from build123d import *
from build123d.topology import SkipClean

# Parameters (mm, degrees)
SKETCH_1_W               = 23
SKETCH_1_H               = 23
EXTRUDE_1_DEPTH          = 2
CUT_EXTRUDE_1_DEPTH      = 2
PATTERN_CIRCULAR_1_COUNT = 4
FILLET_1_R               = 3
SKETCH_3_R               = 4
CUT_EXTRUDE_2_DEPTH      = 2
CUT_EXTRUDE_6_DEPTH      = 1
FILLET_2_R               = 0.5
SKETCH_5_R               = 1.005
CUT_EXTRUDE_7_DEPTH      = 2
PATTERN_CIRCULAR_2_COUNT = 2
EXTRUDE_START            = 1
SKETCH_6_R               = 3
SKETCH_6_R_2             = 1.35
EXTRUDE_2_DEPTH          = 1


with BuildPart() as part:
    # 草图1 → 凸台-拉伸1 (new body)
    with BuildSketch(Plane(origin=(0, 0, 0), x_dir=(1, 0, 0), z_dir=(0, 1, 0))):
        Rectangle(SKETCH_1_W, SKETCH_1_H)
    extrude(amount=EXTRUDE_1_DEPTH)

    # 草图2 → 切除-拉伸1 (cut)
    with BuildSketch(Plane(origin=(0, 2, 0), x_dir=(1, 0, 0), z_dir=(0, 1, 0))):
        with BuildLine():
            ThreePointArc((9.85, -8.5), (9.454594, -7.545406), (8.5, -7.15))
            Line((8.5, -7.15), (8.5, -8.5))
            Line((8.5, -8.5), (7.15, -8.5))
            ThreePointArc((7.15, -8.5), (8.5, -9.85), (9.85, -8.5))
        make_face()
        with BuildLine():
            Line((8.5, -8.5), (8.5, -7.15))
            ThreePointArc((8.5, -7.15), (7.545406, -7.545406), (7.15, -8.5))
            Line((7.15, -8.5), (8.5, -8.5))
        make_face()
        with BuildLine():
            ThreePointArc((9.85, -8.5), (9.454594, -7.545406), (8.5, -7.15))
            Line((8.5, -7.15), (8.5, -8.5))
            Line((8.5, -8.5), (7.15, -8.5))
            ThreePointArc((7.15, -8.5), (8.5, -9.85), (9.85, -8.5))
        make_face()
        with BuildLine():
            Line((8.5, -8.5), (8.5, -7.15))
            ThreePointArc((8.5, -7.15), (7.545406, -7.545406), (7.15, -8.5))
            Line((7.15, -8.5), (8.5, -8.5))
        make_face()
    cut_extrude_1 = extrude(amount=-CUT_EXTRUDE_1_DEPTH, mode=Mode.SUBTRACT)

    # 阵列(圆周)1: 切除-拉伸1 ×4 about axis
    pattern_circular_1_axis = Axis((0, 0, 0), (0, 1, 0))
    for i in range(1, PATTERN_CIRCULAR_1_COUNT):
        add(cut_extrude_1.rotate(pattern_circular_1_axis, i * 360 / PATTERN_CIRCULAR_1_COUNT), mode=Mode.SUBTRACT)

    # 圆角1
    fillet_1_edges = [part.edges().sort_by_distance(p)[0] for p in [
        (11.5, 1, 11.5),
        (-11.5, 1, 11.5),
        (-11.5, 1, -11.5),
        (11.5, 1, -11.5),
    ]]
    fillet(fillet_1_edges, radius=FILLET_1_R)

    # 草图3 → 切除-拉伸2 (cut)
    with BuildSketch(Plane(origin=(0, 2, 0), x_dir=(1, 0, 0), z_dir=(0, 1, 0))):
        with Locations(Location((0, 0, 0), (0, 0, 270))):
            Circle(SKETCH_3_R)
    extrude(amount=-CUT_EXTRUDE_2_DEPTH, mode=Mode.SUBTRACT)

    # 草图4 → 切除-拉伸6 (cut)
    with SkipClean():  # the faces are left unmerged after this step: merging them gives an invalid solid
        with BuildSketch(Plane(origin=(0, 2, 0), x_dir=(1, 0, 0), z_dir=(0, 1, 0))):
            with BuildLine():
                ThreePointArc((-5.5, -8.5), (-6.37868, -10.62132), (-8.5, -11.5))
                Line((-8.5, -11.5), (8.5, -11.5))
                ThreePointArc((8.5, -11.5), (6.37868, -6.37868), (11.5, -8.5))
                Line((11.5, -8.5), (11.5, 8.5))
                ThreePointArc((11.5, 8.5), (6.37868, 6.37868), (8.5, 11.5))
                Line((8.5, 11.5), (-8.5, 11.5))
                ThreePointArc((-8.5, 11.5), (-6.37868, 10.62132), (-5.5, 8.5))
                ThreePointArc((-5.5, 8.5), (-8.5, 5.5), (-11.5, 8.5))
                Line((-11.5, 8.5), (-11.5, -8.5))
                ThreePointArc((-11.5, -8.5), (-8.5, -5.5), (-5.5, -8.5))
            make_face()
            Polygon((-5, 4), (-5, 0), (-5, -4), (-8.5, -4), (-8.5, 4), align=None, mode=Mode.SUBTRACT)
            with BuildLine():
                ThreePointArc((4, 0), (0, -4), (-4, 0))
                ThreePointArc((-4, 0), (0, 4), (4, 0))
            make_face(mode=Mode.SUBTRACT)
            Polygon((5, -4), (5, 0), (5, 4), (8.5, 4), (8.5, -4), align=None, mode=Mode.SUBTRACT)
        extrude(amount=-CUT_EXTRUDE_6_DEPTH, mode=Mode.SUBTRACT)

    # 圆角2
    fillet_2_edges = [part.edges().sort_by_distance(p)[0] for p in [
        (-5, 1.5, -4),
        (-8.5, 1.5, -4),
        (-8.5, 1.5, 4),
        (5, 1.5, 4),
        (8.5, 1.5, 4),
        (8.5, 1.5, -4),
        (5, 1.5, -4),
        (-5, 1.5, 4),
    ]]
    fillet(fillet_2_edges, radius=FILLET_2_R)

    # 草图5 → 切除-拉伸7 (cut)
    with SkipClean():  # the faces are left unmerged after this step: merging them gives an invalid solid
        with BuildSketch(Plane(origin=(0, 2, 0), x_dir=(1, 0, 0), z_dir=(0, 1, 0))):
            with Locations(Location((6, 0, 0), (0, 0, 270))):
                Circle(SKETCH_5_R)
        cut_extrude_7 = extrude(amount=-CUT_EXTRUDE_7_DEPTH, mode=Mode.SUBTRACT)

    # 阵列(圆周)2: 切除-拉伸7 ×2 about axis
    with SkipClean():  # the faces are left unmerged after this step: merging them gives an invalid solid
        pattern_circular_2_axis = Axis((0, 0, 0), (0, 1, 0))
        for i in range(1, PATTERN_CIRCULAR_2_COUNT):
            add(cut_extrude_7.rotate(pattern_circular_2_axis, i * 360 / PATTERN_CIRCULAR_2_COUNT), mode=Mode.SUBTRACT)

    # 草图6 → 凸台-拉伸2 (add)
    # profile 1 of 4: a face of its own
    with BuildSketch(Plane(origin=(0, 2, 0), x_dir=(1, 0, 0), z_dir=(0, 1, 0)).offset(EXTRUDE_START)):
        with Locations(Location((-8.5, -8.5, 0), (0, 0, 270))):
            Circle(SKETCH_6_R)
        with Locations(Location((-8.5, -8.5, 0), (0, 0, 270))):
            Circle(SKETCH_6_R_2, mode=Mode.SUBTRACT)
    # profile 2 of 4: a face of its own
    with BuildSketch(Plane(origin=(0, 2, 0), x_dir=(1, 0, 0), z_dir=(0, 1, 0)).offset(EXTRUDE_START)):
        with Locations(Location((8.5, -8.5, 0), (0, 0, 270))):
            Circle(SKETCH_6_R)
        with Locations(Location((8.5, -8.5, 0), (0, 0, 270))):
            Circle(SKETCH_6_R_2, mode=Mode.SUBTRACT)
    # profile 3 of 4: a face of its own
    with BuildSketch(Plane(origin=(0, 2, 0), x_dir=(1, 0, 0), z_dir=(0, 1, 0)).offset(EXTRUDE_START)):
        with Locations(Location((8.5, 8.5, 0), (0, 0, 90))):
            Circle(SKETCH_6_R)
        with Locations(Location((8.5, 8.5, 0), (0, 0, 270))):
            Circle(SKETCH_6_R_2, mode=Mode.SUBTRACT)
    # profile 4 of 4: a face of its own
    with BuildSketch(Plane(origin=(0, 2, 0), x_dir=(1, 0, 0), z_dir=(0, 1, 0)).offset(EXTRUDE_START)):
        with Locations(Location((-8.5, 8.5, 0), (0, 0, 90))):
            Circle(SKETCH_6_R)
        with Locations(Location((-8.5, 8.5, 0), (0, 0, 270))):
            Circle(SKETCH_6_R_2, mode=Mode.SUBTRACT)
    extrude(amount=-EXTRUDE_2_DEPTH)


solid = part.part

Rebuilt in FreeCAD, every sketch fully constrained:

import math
import FreeCAD as App
import Part
import Sketcher
from FreeCAD import Vector


def edges_at(feature, points):
    """Names of the edges that pass closest to the given points."""
    edges = feature.Shape.Edges
    near = lambda p: min(range(len(edges)), key=lambda i: edges[i].distToShape(Part.Vertex(*p))[0])
    return sorted({f"Edge{near(p) + 1}" for p in points})

doc = App.newDocument("Part")
params = doc.addObject("Spreadsheet::Sheet", "Params")
for row, (alias, value) in enumerate([
    ("sketch1_width", "23 mm"),
    ("pad1_length", "2 mm"),
    ("sketch2_radius", "1.350001 mm"),
    ("pocket1_length", "2 mm"),
    ("fillet_radius", "3 mm"),
    ("sketch3_diameter", "8 mm"),
    ("pocket2_length", "2 mm"),
    ("sketch4_radius", "3.000001 mm"),
    ("sketch4_radius2", "4 mm"),
    ("sketch4_width", "17 mm"),
    ("sketch4_height", "4 mm"),
    ("sketch4_width2", "3.5 mm"),
    ("pocket3_length", "1 mm"),
    ("fillet2_radius", "0.5 mm"),
    ("sketch5_diameter", "2.01 mm"),
    ("pocket4_length", "2 mm"),
    ("sketch6_diameter", "6 mm"),
    ("sketch6_diameter2", "2.7 mm"),
    ("pad2_length", "1 mm"),
], start=1):
    params.set(f"A{row}", alias)
    params.set(f"B{row}", "=" + value)
    params.setAlias(f"B{row}", alias)

body = doc.addObject("PartDesign::Body", "Body")

# Sketch on XZ plane
sketch1 = body.newObject("Sketcher::SketchObject", "Sketch")
sketch1.AttachmentSupport = (doc.getObject("XZ_Plane"), [""])
sketch1.MapMode = "FlatFace"
sketch1.addGeometry([
    Part.LineSegment(Vector(-11.5, -11.5, 0), Vector(-11.5, 11.5, 0)),
    Part.LineSegment(Vector(-11.5, 11.5, 0), Vector(11.5, 11.5, 0)),
    Part.LineSegment(Vector(11.5, 11.5, 0), Vector(11.5, -11.5, 0)),
    Part.LineSegment(Vector(11.5, -11.5, 0), Vector(-11.5, -11.5, 0)),
], False)
sketch1.addConstraint([
    Sketcher.Constraint("Coincident", 0, 2, 1, 1),
    Sketcher.Constraint("Coincident", 1, 2, 2, 1),
    Sketcher.Constraint("Coincident", 2, 2, 3, 1),
    Sketcher.Constraint("Coincident", 3, 2, 0, 1),
    Sketcher.Constraint("Vertical", 0),
    Sketcher.Constraint("Horizontal", 1),
    Sketcher.Constraint("Vertical", 2),
    Sketcher.Constraint("Horizontal", 3),
    Sketcher.Constraint("Symmetric", 0, 2, 2, 2, -1, 1),
    Sketcher.Constraint("Equal", 3, 0),
    Sketcher.Constraint("DistanceX", 1, 1, 1, 2, 23.0),
])
sketch1.setExpression("Constraints[10]", "Params.sketch1_width")
pad1 = body.newObject("PartDesign::Pad", "Pad")
pad1.Profile = sketch1
pad1.setExpression("Length", "Params.pad1_length")
pad1.Reversed = True

# Sketch on XZ plane
sketch2 = body.newObject("Sketcher::SketchObject", "Sketch001")
sketch2.AttachmentSupport = (doc.getObject("XZ_Plane"), [""])
sketch2.MapMode = "FlatFace"
sketch2.AttachmentOffset = App.Placement(Vector(0, 0, -2), App.Rotation())
sketch2.addGeometry([
    Part.ArcOfCircle(Part.Circle(Vector(8.499999, 8.500001, 0), Vector(0, 0, 1), 1.350001), math.radians(-89.999978), math.radians(-0.000022)),
    Part.ArcOfCircle(Part.Circle(Vector(8.500001, 8.500001, 0), Vector(0, 0, 1), 1.350001), math.radians(-179.999978), math.radians(-90.000022)),
    Part.ArcOfCircle(Part.Circle(Vector(8.5, 8.5, 0), Vector(0, 0, 1), 1.35), math.radians(0), math.radians(180)),
], False)
sketch2.addConstraint([
    Sketcher.Constraint("Tangent", 0, 1, 1, 2),
    Sketcher.Constraint("Tangent", 1, 1, 2, 2),
    Sketcher.Constraint("Tangent", 2, 1, 0, 2),
    Sketcher.Constraint("Horizontal", 2, 3, 1, 1),
    Sketcher.Constraint("Horizontal", 1, 1, 2, 1),
    Sketcher.Constraint("Vertical", 2, 3, 0, 1),
    Sketcher.Constraint("Radius", 0, 1.350001),
    Sketcher.Constraint("DistanceX", -1, 1, 0, 3, 8.499999),
    Sketcher.Constraint("DistanceY", -1, 1, 0, 3, 8.500001),
])
sketch2.setExpression("Constraints[6]", "Params.sketch2_radius")
pocket1 = body.newObject("PartDesign::Pocket", "Pocket")
pocket1.Profile = sketch2
pocket1.setExpression("Length", "Params.pocket1_length")
pocket1.Reversed = True
doc.recompute()

polarpattern = body.newObject("PartDesign::PolarPattern", "PolarPattern")
polarpattern.Originals = [pocket1]
polarpattern.Axis = (doc.getObject("Y_Axis"), [""])
polarpattern.Angle = 360
polarpattern.Occurrences = 4
body.Tip = polarpattern
doc.recompute()

fillet = body.newObject("PartDesign::Fillet", "Fillet")
fillet.Base = (polarpattern, edges_at(polarpattern, [
    (11.5, 1, 11.5),
    (-11.5, 1, 11.5),
    (-11.5, 1, -11.5),
    (11.5, 1, -11.5),
]))
fillet.setExpression("Radius", "Params.fillet_radius")

# Sketch on XZ plane
sketch3 = body.newObject("Sketcher::SketchObject", "Sketch002")
sketch3.AttachmentSupport = (doc.getObject("XZ_Plane"), [""])
sketch3.MapMode = "FlatFace"
sketch3.AttachmentOffset = App.Placement(Vector(0, 0, -2), App.Rotation())
sketch3.addGeometry(Part.Circle(Vector(0, 0, 0), Vector(0, 0, 1), 4), False)
sketch3.addConstraint([
    Sketcher.Constraint("Coincident", 0, 3, -1, 1),
    Sketcher.Constraint("Diameter", 0, 8.0),
])
sketch3.setExpression("Constraints[1]", "Params.sketch3_diameter")
pocket2 = body.newObject("PartDesign::Pocket", "Pocket001")
pocket2.Profile = sketch3
pocket2.setExpression("Length", "Params.pocket2_length")
pocket2.Reversed = True

# Sketch on XZ plane
sketch4 = body.newObject("Sketcher::SketchObject", "Sketch003")
sketch4.AttachmentSupport = (doc.getObject("XZ_Plane"), [""])
sketch4.MapMode = "FlatFace"
sketch4.AttachmentOffset = App.Placement(Vector(0, 0, -2), App.Rotation())
sketch4.addGeometry([
    Part.ArcOfCircle(Part.Circle(Vector(-8.500001, 8.499999, 0), Vector(0, 0, 1), 3.000001), math.radians(0.000022), math.radians(89.999978)),  # 0
    Part.LineSegment(Vector(-8.5, 11.5, 0), Vector(8.5, 11.5, 0)),  # 1
    Part.ArcOfCircle(Part.Circle(Vector(8.5, 8.5, 0), Vector(0, 0, 1), 3), math.radians(90.000004), math.radians(359.999996)),  # 2
    Part.LineSegment(Vector(11.5, 8.5, 0), Vector(11.5, -8.5, 0)),  # 3
    Part.ArcOfCircle(Part.Circle(Vector(8.5, -8.5, 0), Vector(0, 0, 1), 3), math.radians(0.000004), math.radians(269.999996)),  # 4
    Part.LineSegment(Vector(8.5, -11.5, 0), Vector(-8.5, -11.5, 0)),  # 5
    Part.ArcOfCircle(Part.Circle(Vector(-8.500001, -8.499999, 0), Vector(0, 0, 1), 3.000001), math.radians(-89.999978), math.radians(-0.000022)),  # 6
    Part.ArcOfCircle(Part.Circle(Vector(-8.5, -8.5, 0), Vector(0, 0, 1), 3), math.radians(0), math.radians(180)),  # 7
    Part.LineSegment(Vector(-11.5, -8.5, 0), Vector(-11.5, 8.5, 0)),  # 8
    Part.ArcOfCircle(Part.Circle(Vector(-8.5, 8.5, 0), Vector(0, 0, 1), 3), math.radians(180), math.radians(360)),  # 9
    Part.LineSegment(Vector(-8.5, -4, 0), Vector(-5, -4, 0)),  # 10
    Part.LineSegment(Vector(-5, -4, 0), Vector(-5, 0, 0)),  # 11
    Part.LineSegment(Vector(-5, 0, 0), Vector(-5, 4, 0)),  # 12
    Part.LineSegment(Vector(-5, 4, 0), Vector(-8.5, 4, 0)),  # 13
    Part.LineSegment(Vector(-8.5, 4, 0), Vector(-8.5, -4, 0)),  # 14
    Part.ArcOfCircle(Part.Circle(Vector(0, 0, 0), Vector(0, 0, 1), 4), math.radians(180), math.radians(360)),  # 15
    Part.ArcOfCircle(Part.Circle(Vector(0, 0, 0), Vector(0, 0, 1), 4), math.radians(0), math.radians(180)),  # 16
    Part.LineSegment(Vector(8.5, 4, 0), Vector(5, 4, 0)),  # 17
    Part.LineSegment(Vector(5, 4, 0), Vector(5, 0, 0)),  # 18
    Part.LineSegment(Vector(5, 0, 0), Vector(5, -4, 0)),  # 19
    Part.LineSegment(Vector(5, -4, 0), Vector(8.5, -4, 0)),  # 20
    Part.LineSegment(Vector(8.5, -4, 0), Vector(8.5, 4, 0)),  # 21
], False)
sketch4.addConstraint([
    Sketcher.Constraint("Tangent", 0, 2, 1, 1),
    Sketcher.Constraint("Tangent", 1, 2, 2, 1),
    Sketcher.Constraint("Tangent", 2, 2, 3, 1),
    Sketcher.Constraint("Tangent", 3, 2, 4, 1),
    Sketcher.Constraint("Tangent", 4, 2, 5, 1),
    Sketcher.Constraint("Tangent", 5, 2, 6, 1),
    Sketcher.Constraint("Tangent", 6, 2, 7, 1),
    Sketcher.Constraint("Tangent", 7, 2, 8, 1),
    Sketcher.Constraint("Tangent", 8, 2, 9, 1),
    Sketcher.Constraint("Tangent", 9, 2, 0, 1),
    Sketcher.Constraint("Coincident", 10, 2, 11, 1),
    Sketcher.Constraint("Coincident", 11, 2, 12, 1),
    Sketcher.Constraint("Coincident", 12, 2, 13, 1),
    Sketcher.Constraint("Coincident", 13, 2, 14, 1),
    Sketcher.Constraint("Coincident", 14, 2, 10, 1),
    Sketcher.Constraint("Tangent", 15, 1, 16, 2),
    Sketcher.Constraint("Coincident", 16, 1, 15, 2),
    Sketcher.Constraint("Coincident", 17, 2, 18, 1),
    Sketcher.Constraint("Coincident", 18, 2, 19, 1),
    Sketcher.Constraint("Coincident", 19, 2, 20, 1),
    Sketcher.Constraint("Coincident", 20, 2, 21, 1),
    Sketcher.Constraint("Coincident", 21, 2, 17, 1),
    Sketcher.Constraint("Horizontal", 1),
    Sketcher.Constraint("Vertical", 3),
    Sketcher.Constraint("Horizontal", 5),
    Sketcher.Constraint("Vertical", 8),
    Sketcher.Constraint("Horizontal", 10),
    Sketcher.Constraint("Vertical", 11),
    Sketcher.Constraint("Vertical", 12),
    Sketcher.Constraint("Horizontal", 13),
    Sketcher.Constraint("Vertical", 14),
    Sketcher.Constraint("Horizontal", 17),
    Sketcher.Constraint("Vertical", 18),
    Sketcher.Constraint("Vertical", 19),
    Sketcher.Constraint("Horizontal", 20),
    Sketcher.Constraint("Vertical", 21),
    Sketcher.Constraint("Coincident", 15, 3, -1, 1),
    Sketcher.Constraint("Equal", 0, 2),
    Sketcher.Constraint("Equal", 2, 4),
    Sketcher.Constraint("Equal", 4, 6),
    Sketcher.Constraint("Equal", 6, 7),
    Sketcher.Constraint("Equal", 7, 9),
    Sketcher.Constraint("Symmetric", 0, 3, 4, 3, -1, 1),
    Sketcher.Constraint("Symmetric", 10, 2, 17, 2, -1, 1),
    Sketcher.Constraint("Symmetric", 13, 2, 20, 2, -1, 1),
    Sketcher.Constraint("PointOnObject", 11, 2, -1),
    Sketcher.Constraint("PointOnObject", 15, 1, -1),
    Sketcher.Constraint("PointOnObject", 16, 1, -1),
    Sketcher.Constraint("PointOnObject", 18, 2, -1),
    Sketcher.Constraint("Horizontal", 3, 2, 6, 2),
    Sketcher.Constraint("Horizontal", 8, 2, 9, 2),
    Sketcher.Constraint("Horizontal", 13, 2, 17, 2),
    Sketcher.Constraint("Vertical", 5, 2, 13, 2),
    Sketcher.Constraint("Equal", 5, 3),
    Sketcher.Constraint("Radius", 0, 3.000001),
    Sketcher.Constraint("Radius", 15, 4.0),
    Sketcher.Constraint("DistanceX", 1, 1, 1, 2, 17.0),
    Sketcher.Constraint("DistanceY", 11, 1, 11, 2, 4.0),
    Sketcher.Constraint("DistanceX", 10, 1, 10, 2, 3.5),
])
sketch4.setExpression("Constraints[54]", "Params.sketch4_radius")
sketch4.setExpression("Constraints[55]", "Params.sketch4_radius2")
sketch4.setExpression("Constraints[56]", "Params.sketch4_width")
sketch4.setExpression("Constraints[57]", "Params.sketch4_height")
sketch4.setExpression("Constraints[58]", "Params.sketch4_width2")
pocket3 = body.newObject("PartDesign::Pocket", "Pocket002")
pocket3.Profile = sketch4
pocket3.setExpression("Length", "Params.pocket3_length")
pocket3.Reversed = True
doc.recompute()

fillet2 = body.newObject("PartDesign::Fillet", "Fillet001")
fillet2.Base = (pocket3, edges_at(pocket3, [
    (-5, 1.5, -4),
    (-8.5, 1.5, -4),
    (-8.5, 1.5, 4),
    (5, 1.5, 4),
    (8.5, 1.5, 4),
    (8.5, 1.5, -4),
    (5, 1.5, -4),
    (-5, 1.5, 4),
]))
fillet2.setExpression("Radius", "Params.fillet2_radius")

# Sketch on XZ plane
sketch5 = body.newObject("Sketcher::SketchObject", "Sketch004")
sketch5.AttachmentSupport = (doc.getObject("XZ_Plane"), [""])
sketch5.MapMode = "FlatFace"
sketch5.AttachmentOffset = App.Placement(Vector(0, 0, -2), App.Rotation())
sketch5.addGeometry(Part.Circle(Vector(6, 0, 0), Vector(0, 0, 1), 1.005), False)
sketch5.addConstraint([
    Sketcher.Constraint("PointOnObject", 0, 3, -1),
    Sketcher.Constraint("Diameter", 0, 2.01),
    Sketcher.Constraint("DistanceX", -1, 1, 0, 3, 6.0),
])
sketch5.setExpression("Constraints[1]", "Params.sketch5_diameter")
pocket4 = body.newObject("PartDesign::Pocket", "Pocket003")
pocket4.Profile = sketch5
pocket4.setExpression("Length", "Params.pocket4_length")
pocket4.Reversed = True
doc.recompute()

polarpattern2 = body.newObject("PartDesign::PolarPattern", "PolarPattern001")
polarpattern2.Originals = [pocket4]
polarpattern2.Axis = (doc.getObject("Y_Axis"), [""])
polarpattern2.Angle = 360
polarpattern2.Occurrences = 2
body.Tip = polarpattern2

# Sketch on XZ plane
sketch6 = body.newObject("Sketcher::SketchObject", "Sketch005")
sketch6.AttachmentSupport = (doc.getObject("XZ_Plane"), [""])
sketch6.MapMode = "FlatFace"
sketch6.AttachmentOffset = App.Placement(Vector(0, 0, -3), App.Rotation())
sketch6.addGeometry([
    Part.Circle(Vector(-8.5, 8.5, 0), Vector(0, 0, 1), 3),  # 0
    Part.Circle(Vector(-8.5, 8.5, 0), Vector(0, 0, 1), 1.35),  # 1
    Part.Circle(Vector(8.5, 8.5, 0), Vector(0, 0, 1), 3),  # 2
    Part.Circle(Vector(8.5, 8.5, 0), Vector(0, 0, 1), 1.35),  # 3
    Part.Circle(Vector(8.5, -8.5, 0), Vector(0, 0, 1), 3),  # 4
    Part.Circle(Vector(8.5, -8.5, 0), Vector(0, 0, 1), 1.35),  # 5
    Part.Circle(Vector(-8.5, -8.5, 0), Vector(0, 0, 1), 3),  # 6
    Part.Circle(Vector(-8.5, -8.5, 0), Vector(0, 0, 1), 1.35),  # 7
], False)
sketch6.addConstraint([
    Sketcher.Constraint("Coincident", 1, 3, 0, 3),
    Sketcher.Constraint("Coincident", 3, 3, 2, 3),
    Sketcher.Constraint("Coincident", 5, 3, 4, 3),
    Sketcher.Constraint("Coincident", 7, 3, 6, 3),
    Sketcher.Constraint("Equal", 0, 2),
    Sketcher.Constraint("Equal", 1, 3),
    Sketcher.Constraint("Equal", 2, 4),
    Sketcher.Constraint("Equal", 3, 5),
    Sketcher.Constraint("Equal", 4, 6),
    Sketcher.Constraint("Equal", 5, 7),
    Sketcher.Constraint("Symmetric", 0, 3, 4, 3, -1, 1),
    Sketcher.Constraint("Symmetric", 2, 3, 6, 3, -1, 1),
    Sketcher.Constraint("Symmetric", 0, 3, 2, 3, -2),
    Sketcher.Constraint("Diameter", 0, 6.0),
    Sketcher.Constraint("Diameter", 1, 2.7),
    Sketcher.Constraint("DistanceX", 0, 3, 2, 3, 17.0),
    Sketcher.Constraint("DistanceY", 4, 3, 2, 3, 17.0),
])
sketch6.setExpression("Constraints[13]", "Params.sketch6_diameter")
sketch6.setExpression("Constraints[14]", "Params.sketch6_diameter2")
pad2 = body.newObject("PartDesign::Pad", "Pad001")
pad2.Profile = sketch6
pad2.setExpression("Length", "Params.pad2_length")

doc.recompute()
